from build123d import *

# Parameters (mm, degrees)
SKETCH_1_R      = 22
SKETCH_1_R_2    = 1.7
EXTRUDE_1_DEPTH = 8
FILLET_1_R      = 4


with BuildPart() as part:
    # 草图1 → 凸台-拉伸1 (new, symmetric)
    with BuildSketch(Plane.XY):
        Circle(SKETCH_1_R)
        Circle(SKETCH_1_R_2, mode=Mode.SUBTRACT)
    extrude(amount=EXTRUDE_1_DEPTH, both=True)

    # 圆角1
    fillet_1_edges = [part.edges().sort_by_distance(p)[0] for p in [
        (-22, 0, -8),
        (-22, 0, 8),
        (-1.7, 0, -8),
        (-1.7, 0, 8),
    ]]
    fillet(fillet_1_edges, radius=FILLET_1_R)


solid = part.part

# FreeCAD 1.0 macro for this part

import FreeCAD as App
import Part
import Sketcher
from FreeCAD import Vector
Q = App.Units.Quantity


def edges_at(feature, points):
    """Names of the edges that pass closest to the given points."""
    edges = feature.Shape.Edges
    near = lambda p: min(range(len(edges)), key=lambda i: edges[i].distToShape(Part.Vertex(*p))[0])
    return sorted({f"Edge{near(p) + 1}" for p in points})

doc = App.newDocument("Part")
body = doc.addObject("PartDesign::Body", "Body")

sketch1 = doc.addObject("Sketcher::SketchObject", "Sketch")
body.addObject(sketch1)
sketch1.AttachmentSupport = (doc.XY_Plane, [""])
sketch1.MapMode = "FlatFace"
sketch1.addGeometry([
    Part.Circle(Vector(0, 0, 0), Vector(0, 0, 1), 22),
    Part.Circle(Vector(0, 0, 0), Vector(0, 0, 1), 1.7),
], False)
sketch1.addConstraint([
    Sketcher.Constraint("Coincident", 0, 3, -1, 1),
    Sketcher.Constraint("Coincident", 1, 3, -1, 1),
    Sketcher.Constraint("Diameter", 0, Q("44 mm")),
    Sketcher.Constraint("Diameter", 1, Q("3.4 mm")),
])
pad1 = doc.addObject("PartDesign::Pad", "Pad")
body.addObject(pad1)
pad1.Profile = sketch1
pad1.Length = 16
pad1.Midplane = True
doc.recompute()

fillet = doc.addObject("PartDesign::Fillet", "Fillet")
body.addObject(fillet)
fillet.Base = (pad1, edges_at(pad1, [
    (-22, 0, -8),
    (-22, 0, 8),
    (-1.7, 0, -8),
    (-1.7, 0, 8),
]))
fillet.Radius = 4

doc.recompute()
